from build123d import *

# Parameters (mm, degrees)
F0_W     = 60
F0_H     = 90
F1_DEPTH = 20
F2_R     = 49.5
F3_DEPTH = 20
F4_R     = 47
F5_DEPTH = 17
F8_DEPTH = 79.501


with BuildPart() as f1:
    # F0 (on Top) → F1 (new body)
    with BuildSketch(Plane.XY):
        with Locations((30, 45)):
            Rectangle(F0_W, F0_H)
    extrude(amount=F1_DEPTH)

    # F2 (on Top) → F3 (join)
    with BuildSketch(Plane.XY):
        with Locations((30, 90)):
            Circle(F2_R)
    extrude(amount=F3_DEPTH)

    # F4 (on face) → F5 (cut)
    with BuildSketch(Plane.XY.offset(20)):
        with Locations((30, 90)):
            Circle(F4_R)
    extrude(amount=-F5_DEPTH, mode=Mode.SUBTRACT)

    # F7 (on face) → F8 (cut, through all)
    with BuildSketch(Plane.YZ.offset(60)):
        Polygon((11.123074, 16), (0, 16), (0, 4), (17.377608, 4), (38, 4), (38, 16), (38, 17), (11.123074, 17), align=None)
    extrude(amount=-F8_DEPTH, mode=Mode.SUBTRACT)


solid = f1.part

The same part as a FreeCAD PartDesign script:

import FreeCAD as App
import Part
import Sketcher
Q = App.Units.Quantity

doc = App.newDocument("Part")
body = doc.addObject("PartDesign::Body", "Body")

# Sketch on XY plane
sketch1 = body.newObject("Sketcher::SketchObject", "Sketch")
sketch1.AttachmentSupport = (doc.getObject("XY_Plane"), [""])
sketch1.MapMode = "FlatFace"
sketch1.addGeometry([
    Part.LineSegment(App.Vector(0, 90, 0), App.Vector(0, 0, 0)),
    Part.LineSegment(App.Vector(0, 0, 0), App.Vector(60, 0, 0)),
    Part.LineSegment(App.Vector(60, 0, 0), App.Vector(60, 90, 0)),
    Part.LineSegment(App.Vector(60, 90, 0), App.Vector(0, 90, 0)),
], False)
sketch1.addConstraint([
    Sketcher.Constraint("Coincident", 0, 2, 1, 1),
    Sketcher.Constraint("Coincident", 1, 2, 2, 1),
    Sketcher.Constraint("Coincident", 2, 2, 3, 1),
    Sketcher.Constraint("Coincident", 3, 2, 0, 1),
    Sketcher.Constraint("Vertical", 0),
    Sketcher.Constraint("Horizontal", 1),
    Sketcher.Constraint("Vertical", 2),
    Sketcher.Constraint("Horizontal", 3),
    Sketcher.Constraint("Coincident", 0, 2, -1, 1),
    Sketcher.Constraint("DistanceX", 1, 1, 1, 2, Q("60 mm")),
    Sketcher.Constraint("DistanceY", 0, 2, 0, 1, Q("90 mm")),
])
pad1 = body.newObject("PartDesign::Pad", "Pad")
pad1.Profile = sketch1
pad1.Length = 20

# Sketch on XY plane
sketch2 = body.newObject("Sketcher::SketchObject", "Sketch001")
sketch2.AttachmentSupport = (doc.getObject("XY_Plane"), [""])
sketch2.MapMode = "FlatFace"
sketch2.addGeometry(Part.Circle(App.Vector(30, 90, 0), App.Vector(0, 0, 1), 50), False)
sketch2.addConstraint([
    Sketcher.Constraint("Diameter", 0, Q("99 mm")),
    Sketcher.Constraint("DistanceX", -1, 1, 0, 3, Q("30 mm")),
    Sketcher.Constraint("DistanceY", -1, 1, 0, 3, Q("90 mm")),
])
pad2 = body.newObject("PartDesign::Pad", "Pad001")
pad2.Profile = sketch2
pad2.Length = 20

# Sketch on XY plane
sketch3 = body.newObject("Sketcher::SketchObject", "Sketch002")
sketch3.AttachmentSupport = (doc.getObject("XY_Plane"), [""])
sketch3.MapMode = "FlatFace"
sketch3.AttachmentOffset = App.Placement(App.Vector(0, 0, 20), App.Rotation())
sketch3.addGeometry(Part.Circle(App.Vector(30, 90, 0), App.Vector(0, 0, 1), 47), False)
sketch3.addConstraint([
    Sketcher.Constraint("Diameter", 0, Q("94 mm")),
    Sketcher.Constraint("DistanceX", -1, 1, 0, 3, Q("30 mm")),
    Sketcher.Constraint("DistanceY", -1, 1, 0, 3, Q("90 mm")),
])
pocket1 = body.newObject("PartDesign::Pocket", "Pocket")
pocket1.Profile = sketch3
pocket1.Length = 17

# Sketch on YZ plane
sketch4 = body.newObject("Sketcher::SketchObject", "Sketch003")
sketch4.AttachmentSupport = (doc.getObject("YZ_Plane"), [""])
sketch4.MapMode = "FlatFace"
sketch4.AttachmentOffset = App.Placement(App.Vector(0, 0, 60), App.Rotation())
sketch4.addGeometry([
    Part.LineSegment(App.Vector(11.1, 16, 0), App.Vector(0, 16, 0)),  # 0
    Part.LineSegment(App.Vector(0, 16, 0), App.Vector(0, 4, 0)),  # 1
    Part.LineSegment(App.Vector(0, 4, 0), App.Vector(38, 4, 0)),  # 2
    Part.LineSegment(App.Vector(38, 4, 0), App.Vector(38, 17, 0)),  # 3
    Part.LineSegment(App.Vector(38, 17, 0), App.Vector(11.1, 17, 0)),  # 4
    Part.LineSegment(App.Vector(11.1, 17, 0), App.Vector(11.1, 16, 0)),  # 5
], False)
sketch4.addConstraint([
    Sketcher.Constraint("Coincident", 0, 2, 1, 1),
    Sketcher.Constraint("Coincident", 1, 2, 2, 1),
    Sketcher.Constraint("Coincident", 2, 2, 3, 1),
    Sketcher.Constraint("Coincident", 3, 2, 4, 1),
    Sketcher.Constraint("Coincident", 4, 2, 5, 1),
    Sketcher.Constraint("Coincident", 5, 2, 0, 1),
    Sketcher.Constraint("Horizontal", 0),
    Sketcher.Constraint("Vertical", 1),
    Sketcher.Constraint("Horizontal", 2),
    Sketcher.Constraint("Vertical", 3),
    Sketcher.Constraint("Horizontal", 4),
    Sketcher.Constraint("Vertical", 5),
    Sketcher.Constraint("PointOnObject", 0, 2, -2),
    Sketcher.Constraint("DistanceX", 2, 1, 2, 2, Q("38 mm")),
    Sketcher.Constraint("DistanceY", 1, 2, 1, 1, Q("12 mm")),
    Sketcher.Constraint("DistanceY", 3, 1, 3, 2, Q("13 mm")),
    Sketcher.Constraint("DistanceY", -1, 1, 0, 2, Q("16 mm")),
    Sketcher.Constraint("DistanceX", 0, 2, 0, 1, Q("11.123074 mm")),
])
pocket2 = body.newObject("PartDesign::Pocket", "Pocket001")
pocket2.Profile = sketch4
pocket2.Type = "ThroughAll"

doc.recompute()
